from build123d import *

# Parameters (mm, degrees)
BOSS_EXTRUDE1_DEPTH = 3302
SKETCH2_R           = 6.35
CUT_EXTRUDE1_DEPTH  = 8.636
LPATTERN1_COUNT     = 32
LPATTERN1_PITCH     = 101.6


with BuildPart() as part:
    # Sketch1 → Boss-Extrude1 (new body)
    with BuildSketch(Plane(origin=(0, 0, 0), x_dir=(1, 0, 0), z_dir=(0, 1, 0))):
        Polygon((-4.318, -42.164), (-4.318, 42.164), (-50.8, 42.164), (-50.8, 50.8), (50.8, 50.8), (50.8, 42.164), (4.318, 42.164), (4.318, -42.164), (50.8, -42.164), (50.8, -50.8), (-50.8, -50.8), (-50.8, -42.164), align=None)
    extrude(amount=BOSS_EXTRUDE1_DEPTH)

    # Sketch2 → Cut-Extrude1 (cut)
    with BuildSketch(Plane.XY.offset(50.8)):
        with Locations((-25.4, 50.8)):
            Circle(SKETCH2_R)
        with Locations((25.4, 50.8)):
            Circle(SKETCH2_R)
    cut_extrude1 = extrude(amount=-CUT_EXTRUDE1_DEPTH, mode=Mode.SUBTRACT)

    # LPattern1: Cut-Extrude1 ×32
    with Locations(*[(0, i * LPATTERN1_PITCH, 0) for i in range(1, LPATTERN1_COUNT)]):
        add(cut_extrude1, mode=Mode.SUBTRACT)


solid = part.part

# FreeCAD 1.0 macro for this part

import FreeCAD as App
import Part
import Sketcher
from FreeCAD import Vector
Q = App.Units.Quantity

doc = App.newDocument("Part")
params = doc.addObject("Spreadsheet::Sheet", "Params")
for row, (alias, value) in enumerate([
    ("sketch1_width", "4 in"),
    ("sketch1_width2", "1.83 in"),
    ("sketch1_height", "3.32 in"),
    ("pad1_length", "130 in"),
    ("sketch2_diameter", "0.5 in"),
    ("pocket1_length", "0.34 in"),
    ("linearpattern_pitch", "4 in"),
], start=1):
    params.set(f"A{row}", alias)
    params.set(f"B{row}", "=" + value)
    params.setAlias(f"B{row}", alias)

body = doc.addObject("PartDesign::Body", "Body")

# Sketch on XZ plane
sketch1 = body.newObject("Sketcher::SketchObject", "Sketch")
sketch1.AttachmentSupport = (doc.getObject("XZ_Plane"), [""])
sketch1.MapMode = "FlatFace"
sketch1.addGeometry([
    Part.LineSegment(Vector(-4, -42, 0), Vector(-4, 42, 0)),  # 0
    Part.LineSegment(Vector(-4, 42, 0), Vector(-51, 42, 0)),  # 1
    Part.LineSegment(Vector(-51, 42, 0), Vector(-51, 51, 0)),  # 2
    Part.LineSegment(Vector(-51, 51, 0), Vector(51, 51, 0)),  # 3
    Part.LineSegment(Vector(51, 51, 0), Vector(51, 42, 0)),  # 4
    Part.LineSegment(Vector(51, 42, 0), Vector(4, 42, 0)),  # 5
    Part.LineSegment(Vector(4, 42, 0), Vector(4, -42, 0)),  # 6
    Part.LineSegment(Vector(4, -42, 0), Vector(51, -42, 0)),  # 7
    Part.LineSegment(Vector(51, -42, 0), Vector(51, -51, 0)),  # 8
    Part.LineSegment(Vector(51, -51, 0), Vector(-51, -51, 0)),  # 9
    Part.LineSegment(Vector(-51, -51, 0), Vector(-51, -42, 0)),  # 10
    Part.LineSegment(Vector(-51, -42, 0), Vector(-4, -42, 0)),  # 11
], False)
sketch1.addConstraint([
    Sketcher.Constraint("Coincident", 0, 2, 1, 1),
    Sketcher.Constraint("Coincident", 1, 2, 2, 1),
    Sketcher.Constraint("Coincident", 2, 2, 3, 1),
    Sketcher.Constraint("Coincident", 3, 2, 4, 1),
    Sketcher.Constraint("Coincident", 4, 2, 5, 1),
    Sketcher.Constraint("Coincident", 5, 2, 6, 1),
    Sketcher.Constraint("Coincident", 6, 2, 7, 1),
    Sketcher.Constraint("Coincident", 7, 2, 8, 1),
    Sketcher.Constraint("Coincident", 8, 2, 9, 1),
    Sketcher.Constraint("Coincident", 9, 2, 10, 1),
    Sketcher.Constraint("Coincident", 10, 2, 11, 1),
    Sketcher.Constraint("Coincident", 11, 2, 0, 1),
    Sketcher.Constraint("Vertical", 0),
    Sketcher.Constraint("Horizontal", 1),
    Sketcher.Constraint("Vertical", 2),
    Sketcher.Constraint("Horizontal", 3),
    Sketcher.Constraint("Vertical", 4),
    Sketcher.Constraint("Horizontal", 5),
    Sketcher.Constraint("Vertical", 6),
    Sketcher.Constraint("Horizontal", 7),
    Sketcher.Constraint("Vertical", 8),
    Sketcher.Constraint("Horizontal", 9),
    Sketcher.Constraint("Vertical", 10),
    Sketcher.Constraint("Horizontal", 11),
    Sketcher.Constraint("Symmetric", 0, 2, 6, 2, -1, 1),
    Sketcher.Constraint("Symmetric", 2, 2, 8, 2, -1, 1),
    Sketcher.Constraint("Symmetric", 4, 2, 10, 2, -1, 1),
    Sketcher.Constraint("Symmetric", 1, 2, 4, 2, -2),
    Sketcher.Constraint("DistanceX", 3, 1, 3, 2, Q("4 in")),
    Sketcher.Constraint("DistanceY", -1, 1, 2, 2, Q("2 in")),
    Sketcher.Constraint("DistanceX", 1, 2, 1, 1, Q("1.83 in")),
    Sketcher.Constraint("DistanceY", 0, 1, 0, 2, Q("3.32 in")),
])
sketch1.setExpression("Constraints[28]", "Params.sketch1_width")
sketch1.setExpression("Constraints[30]", "Params.sketch1_width2")
sketch1.setExpression("Constraints[31]", "Params.sketch1_height")
pad1 = body.newObject("PartDesign::Pad", "Pad")
pad1.Profile = sketch1
pad1.setExpression("Length", "Params.pad1_length")
pad1.Reversed = True

# Sketch on XY plane
sketch2 = body.newObject("Sketcher::SketchObject", "Sketch001")
sketch2.AttachmentSupport = (doc.getObject("XY_Plane"), [""])
sketch2.MapMode = "FlatFace"
sketch2.AttachmentOffset = App.Placement(Vector(0, 0, 2 * 25.4), App.Rotation())
sketch2.addGeometry([
    Part.Circle(Vector(-25, 51, 0), Vector(0, 0, 1), 6),
    Part.Circle(Vector(25, 51, 0), Vector(0, 0, 1), 6),
], False)
sketch2.addConstraint([
    Sketcher.Constraint("Equal", 0, 1),
    Sketcher.Constraint("Symmetric", 0, 3, 1, 3, -2),
    Sketcher.Constraint("Diameter", 0, Q("0.5 in")),
    Sketcher.Constraint("DistanceX", 0, 3, -1, 1, Q("1 in")),
    Sketcher.Constraint("DistanceY", -1, 1, 0, 3, Q("2 in")),
])
sketch2.setExpression("Constraints[2]", "Params.sketch2_diameter")
pocket1 = body.newObject("PartDesign::Pocket", "Pocket")
pocket1.Profile = sketch2
pocket1.setExpression("Length", "Params.pocket1_length")
doc.recompute()

linearpattern = body.newObject("PartDesign::LinearPattern", "LinearPattern")
linearpattern.Originals = [pocket1]
linearpattern.Direction = (doc.getObject("Y_Axis"), [""])
linearpattern.Mode = "offset"
linearpattern.setExpression("Offset", "Params.linearpattern_pitch")
linearpattern.Occurrences = 32
body.Tip = linearpattern

doc.recompute()
